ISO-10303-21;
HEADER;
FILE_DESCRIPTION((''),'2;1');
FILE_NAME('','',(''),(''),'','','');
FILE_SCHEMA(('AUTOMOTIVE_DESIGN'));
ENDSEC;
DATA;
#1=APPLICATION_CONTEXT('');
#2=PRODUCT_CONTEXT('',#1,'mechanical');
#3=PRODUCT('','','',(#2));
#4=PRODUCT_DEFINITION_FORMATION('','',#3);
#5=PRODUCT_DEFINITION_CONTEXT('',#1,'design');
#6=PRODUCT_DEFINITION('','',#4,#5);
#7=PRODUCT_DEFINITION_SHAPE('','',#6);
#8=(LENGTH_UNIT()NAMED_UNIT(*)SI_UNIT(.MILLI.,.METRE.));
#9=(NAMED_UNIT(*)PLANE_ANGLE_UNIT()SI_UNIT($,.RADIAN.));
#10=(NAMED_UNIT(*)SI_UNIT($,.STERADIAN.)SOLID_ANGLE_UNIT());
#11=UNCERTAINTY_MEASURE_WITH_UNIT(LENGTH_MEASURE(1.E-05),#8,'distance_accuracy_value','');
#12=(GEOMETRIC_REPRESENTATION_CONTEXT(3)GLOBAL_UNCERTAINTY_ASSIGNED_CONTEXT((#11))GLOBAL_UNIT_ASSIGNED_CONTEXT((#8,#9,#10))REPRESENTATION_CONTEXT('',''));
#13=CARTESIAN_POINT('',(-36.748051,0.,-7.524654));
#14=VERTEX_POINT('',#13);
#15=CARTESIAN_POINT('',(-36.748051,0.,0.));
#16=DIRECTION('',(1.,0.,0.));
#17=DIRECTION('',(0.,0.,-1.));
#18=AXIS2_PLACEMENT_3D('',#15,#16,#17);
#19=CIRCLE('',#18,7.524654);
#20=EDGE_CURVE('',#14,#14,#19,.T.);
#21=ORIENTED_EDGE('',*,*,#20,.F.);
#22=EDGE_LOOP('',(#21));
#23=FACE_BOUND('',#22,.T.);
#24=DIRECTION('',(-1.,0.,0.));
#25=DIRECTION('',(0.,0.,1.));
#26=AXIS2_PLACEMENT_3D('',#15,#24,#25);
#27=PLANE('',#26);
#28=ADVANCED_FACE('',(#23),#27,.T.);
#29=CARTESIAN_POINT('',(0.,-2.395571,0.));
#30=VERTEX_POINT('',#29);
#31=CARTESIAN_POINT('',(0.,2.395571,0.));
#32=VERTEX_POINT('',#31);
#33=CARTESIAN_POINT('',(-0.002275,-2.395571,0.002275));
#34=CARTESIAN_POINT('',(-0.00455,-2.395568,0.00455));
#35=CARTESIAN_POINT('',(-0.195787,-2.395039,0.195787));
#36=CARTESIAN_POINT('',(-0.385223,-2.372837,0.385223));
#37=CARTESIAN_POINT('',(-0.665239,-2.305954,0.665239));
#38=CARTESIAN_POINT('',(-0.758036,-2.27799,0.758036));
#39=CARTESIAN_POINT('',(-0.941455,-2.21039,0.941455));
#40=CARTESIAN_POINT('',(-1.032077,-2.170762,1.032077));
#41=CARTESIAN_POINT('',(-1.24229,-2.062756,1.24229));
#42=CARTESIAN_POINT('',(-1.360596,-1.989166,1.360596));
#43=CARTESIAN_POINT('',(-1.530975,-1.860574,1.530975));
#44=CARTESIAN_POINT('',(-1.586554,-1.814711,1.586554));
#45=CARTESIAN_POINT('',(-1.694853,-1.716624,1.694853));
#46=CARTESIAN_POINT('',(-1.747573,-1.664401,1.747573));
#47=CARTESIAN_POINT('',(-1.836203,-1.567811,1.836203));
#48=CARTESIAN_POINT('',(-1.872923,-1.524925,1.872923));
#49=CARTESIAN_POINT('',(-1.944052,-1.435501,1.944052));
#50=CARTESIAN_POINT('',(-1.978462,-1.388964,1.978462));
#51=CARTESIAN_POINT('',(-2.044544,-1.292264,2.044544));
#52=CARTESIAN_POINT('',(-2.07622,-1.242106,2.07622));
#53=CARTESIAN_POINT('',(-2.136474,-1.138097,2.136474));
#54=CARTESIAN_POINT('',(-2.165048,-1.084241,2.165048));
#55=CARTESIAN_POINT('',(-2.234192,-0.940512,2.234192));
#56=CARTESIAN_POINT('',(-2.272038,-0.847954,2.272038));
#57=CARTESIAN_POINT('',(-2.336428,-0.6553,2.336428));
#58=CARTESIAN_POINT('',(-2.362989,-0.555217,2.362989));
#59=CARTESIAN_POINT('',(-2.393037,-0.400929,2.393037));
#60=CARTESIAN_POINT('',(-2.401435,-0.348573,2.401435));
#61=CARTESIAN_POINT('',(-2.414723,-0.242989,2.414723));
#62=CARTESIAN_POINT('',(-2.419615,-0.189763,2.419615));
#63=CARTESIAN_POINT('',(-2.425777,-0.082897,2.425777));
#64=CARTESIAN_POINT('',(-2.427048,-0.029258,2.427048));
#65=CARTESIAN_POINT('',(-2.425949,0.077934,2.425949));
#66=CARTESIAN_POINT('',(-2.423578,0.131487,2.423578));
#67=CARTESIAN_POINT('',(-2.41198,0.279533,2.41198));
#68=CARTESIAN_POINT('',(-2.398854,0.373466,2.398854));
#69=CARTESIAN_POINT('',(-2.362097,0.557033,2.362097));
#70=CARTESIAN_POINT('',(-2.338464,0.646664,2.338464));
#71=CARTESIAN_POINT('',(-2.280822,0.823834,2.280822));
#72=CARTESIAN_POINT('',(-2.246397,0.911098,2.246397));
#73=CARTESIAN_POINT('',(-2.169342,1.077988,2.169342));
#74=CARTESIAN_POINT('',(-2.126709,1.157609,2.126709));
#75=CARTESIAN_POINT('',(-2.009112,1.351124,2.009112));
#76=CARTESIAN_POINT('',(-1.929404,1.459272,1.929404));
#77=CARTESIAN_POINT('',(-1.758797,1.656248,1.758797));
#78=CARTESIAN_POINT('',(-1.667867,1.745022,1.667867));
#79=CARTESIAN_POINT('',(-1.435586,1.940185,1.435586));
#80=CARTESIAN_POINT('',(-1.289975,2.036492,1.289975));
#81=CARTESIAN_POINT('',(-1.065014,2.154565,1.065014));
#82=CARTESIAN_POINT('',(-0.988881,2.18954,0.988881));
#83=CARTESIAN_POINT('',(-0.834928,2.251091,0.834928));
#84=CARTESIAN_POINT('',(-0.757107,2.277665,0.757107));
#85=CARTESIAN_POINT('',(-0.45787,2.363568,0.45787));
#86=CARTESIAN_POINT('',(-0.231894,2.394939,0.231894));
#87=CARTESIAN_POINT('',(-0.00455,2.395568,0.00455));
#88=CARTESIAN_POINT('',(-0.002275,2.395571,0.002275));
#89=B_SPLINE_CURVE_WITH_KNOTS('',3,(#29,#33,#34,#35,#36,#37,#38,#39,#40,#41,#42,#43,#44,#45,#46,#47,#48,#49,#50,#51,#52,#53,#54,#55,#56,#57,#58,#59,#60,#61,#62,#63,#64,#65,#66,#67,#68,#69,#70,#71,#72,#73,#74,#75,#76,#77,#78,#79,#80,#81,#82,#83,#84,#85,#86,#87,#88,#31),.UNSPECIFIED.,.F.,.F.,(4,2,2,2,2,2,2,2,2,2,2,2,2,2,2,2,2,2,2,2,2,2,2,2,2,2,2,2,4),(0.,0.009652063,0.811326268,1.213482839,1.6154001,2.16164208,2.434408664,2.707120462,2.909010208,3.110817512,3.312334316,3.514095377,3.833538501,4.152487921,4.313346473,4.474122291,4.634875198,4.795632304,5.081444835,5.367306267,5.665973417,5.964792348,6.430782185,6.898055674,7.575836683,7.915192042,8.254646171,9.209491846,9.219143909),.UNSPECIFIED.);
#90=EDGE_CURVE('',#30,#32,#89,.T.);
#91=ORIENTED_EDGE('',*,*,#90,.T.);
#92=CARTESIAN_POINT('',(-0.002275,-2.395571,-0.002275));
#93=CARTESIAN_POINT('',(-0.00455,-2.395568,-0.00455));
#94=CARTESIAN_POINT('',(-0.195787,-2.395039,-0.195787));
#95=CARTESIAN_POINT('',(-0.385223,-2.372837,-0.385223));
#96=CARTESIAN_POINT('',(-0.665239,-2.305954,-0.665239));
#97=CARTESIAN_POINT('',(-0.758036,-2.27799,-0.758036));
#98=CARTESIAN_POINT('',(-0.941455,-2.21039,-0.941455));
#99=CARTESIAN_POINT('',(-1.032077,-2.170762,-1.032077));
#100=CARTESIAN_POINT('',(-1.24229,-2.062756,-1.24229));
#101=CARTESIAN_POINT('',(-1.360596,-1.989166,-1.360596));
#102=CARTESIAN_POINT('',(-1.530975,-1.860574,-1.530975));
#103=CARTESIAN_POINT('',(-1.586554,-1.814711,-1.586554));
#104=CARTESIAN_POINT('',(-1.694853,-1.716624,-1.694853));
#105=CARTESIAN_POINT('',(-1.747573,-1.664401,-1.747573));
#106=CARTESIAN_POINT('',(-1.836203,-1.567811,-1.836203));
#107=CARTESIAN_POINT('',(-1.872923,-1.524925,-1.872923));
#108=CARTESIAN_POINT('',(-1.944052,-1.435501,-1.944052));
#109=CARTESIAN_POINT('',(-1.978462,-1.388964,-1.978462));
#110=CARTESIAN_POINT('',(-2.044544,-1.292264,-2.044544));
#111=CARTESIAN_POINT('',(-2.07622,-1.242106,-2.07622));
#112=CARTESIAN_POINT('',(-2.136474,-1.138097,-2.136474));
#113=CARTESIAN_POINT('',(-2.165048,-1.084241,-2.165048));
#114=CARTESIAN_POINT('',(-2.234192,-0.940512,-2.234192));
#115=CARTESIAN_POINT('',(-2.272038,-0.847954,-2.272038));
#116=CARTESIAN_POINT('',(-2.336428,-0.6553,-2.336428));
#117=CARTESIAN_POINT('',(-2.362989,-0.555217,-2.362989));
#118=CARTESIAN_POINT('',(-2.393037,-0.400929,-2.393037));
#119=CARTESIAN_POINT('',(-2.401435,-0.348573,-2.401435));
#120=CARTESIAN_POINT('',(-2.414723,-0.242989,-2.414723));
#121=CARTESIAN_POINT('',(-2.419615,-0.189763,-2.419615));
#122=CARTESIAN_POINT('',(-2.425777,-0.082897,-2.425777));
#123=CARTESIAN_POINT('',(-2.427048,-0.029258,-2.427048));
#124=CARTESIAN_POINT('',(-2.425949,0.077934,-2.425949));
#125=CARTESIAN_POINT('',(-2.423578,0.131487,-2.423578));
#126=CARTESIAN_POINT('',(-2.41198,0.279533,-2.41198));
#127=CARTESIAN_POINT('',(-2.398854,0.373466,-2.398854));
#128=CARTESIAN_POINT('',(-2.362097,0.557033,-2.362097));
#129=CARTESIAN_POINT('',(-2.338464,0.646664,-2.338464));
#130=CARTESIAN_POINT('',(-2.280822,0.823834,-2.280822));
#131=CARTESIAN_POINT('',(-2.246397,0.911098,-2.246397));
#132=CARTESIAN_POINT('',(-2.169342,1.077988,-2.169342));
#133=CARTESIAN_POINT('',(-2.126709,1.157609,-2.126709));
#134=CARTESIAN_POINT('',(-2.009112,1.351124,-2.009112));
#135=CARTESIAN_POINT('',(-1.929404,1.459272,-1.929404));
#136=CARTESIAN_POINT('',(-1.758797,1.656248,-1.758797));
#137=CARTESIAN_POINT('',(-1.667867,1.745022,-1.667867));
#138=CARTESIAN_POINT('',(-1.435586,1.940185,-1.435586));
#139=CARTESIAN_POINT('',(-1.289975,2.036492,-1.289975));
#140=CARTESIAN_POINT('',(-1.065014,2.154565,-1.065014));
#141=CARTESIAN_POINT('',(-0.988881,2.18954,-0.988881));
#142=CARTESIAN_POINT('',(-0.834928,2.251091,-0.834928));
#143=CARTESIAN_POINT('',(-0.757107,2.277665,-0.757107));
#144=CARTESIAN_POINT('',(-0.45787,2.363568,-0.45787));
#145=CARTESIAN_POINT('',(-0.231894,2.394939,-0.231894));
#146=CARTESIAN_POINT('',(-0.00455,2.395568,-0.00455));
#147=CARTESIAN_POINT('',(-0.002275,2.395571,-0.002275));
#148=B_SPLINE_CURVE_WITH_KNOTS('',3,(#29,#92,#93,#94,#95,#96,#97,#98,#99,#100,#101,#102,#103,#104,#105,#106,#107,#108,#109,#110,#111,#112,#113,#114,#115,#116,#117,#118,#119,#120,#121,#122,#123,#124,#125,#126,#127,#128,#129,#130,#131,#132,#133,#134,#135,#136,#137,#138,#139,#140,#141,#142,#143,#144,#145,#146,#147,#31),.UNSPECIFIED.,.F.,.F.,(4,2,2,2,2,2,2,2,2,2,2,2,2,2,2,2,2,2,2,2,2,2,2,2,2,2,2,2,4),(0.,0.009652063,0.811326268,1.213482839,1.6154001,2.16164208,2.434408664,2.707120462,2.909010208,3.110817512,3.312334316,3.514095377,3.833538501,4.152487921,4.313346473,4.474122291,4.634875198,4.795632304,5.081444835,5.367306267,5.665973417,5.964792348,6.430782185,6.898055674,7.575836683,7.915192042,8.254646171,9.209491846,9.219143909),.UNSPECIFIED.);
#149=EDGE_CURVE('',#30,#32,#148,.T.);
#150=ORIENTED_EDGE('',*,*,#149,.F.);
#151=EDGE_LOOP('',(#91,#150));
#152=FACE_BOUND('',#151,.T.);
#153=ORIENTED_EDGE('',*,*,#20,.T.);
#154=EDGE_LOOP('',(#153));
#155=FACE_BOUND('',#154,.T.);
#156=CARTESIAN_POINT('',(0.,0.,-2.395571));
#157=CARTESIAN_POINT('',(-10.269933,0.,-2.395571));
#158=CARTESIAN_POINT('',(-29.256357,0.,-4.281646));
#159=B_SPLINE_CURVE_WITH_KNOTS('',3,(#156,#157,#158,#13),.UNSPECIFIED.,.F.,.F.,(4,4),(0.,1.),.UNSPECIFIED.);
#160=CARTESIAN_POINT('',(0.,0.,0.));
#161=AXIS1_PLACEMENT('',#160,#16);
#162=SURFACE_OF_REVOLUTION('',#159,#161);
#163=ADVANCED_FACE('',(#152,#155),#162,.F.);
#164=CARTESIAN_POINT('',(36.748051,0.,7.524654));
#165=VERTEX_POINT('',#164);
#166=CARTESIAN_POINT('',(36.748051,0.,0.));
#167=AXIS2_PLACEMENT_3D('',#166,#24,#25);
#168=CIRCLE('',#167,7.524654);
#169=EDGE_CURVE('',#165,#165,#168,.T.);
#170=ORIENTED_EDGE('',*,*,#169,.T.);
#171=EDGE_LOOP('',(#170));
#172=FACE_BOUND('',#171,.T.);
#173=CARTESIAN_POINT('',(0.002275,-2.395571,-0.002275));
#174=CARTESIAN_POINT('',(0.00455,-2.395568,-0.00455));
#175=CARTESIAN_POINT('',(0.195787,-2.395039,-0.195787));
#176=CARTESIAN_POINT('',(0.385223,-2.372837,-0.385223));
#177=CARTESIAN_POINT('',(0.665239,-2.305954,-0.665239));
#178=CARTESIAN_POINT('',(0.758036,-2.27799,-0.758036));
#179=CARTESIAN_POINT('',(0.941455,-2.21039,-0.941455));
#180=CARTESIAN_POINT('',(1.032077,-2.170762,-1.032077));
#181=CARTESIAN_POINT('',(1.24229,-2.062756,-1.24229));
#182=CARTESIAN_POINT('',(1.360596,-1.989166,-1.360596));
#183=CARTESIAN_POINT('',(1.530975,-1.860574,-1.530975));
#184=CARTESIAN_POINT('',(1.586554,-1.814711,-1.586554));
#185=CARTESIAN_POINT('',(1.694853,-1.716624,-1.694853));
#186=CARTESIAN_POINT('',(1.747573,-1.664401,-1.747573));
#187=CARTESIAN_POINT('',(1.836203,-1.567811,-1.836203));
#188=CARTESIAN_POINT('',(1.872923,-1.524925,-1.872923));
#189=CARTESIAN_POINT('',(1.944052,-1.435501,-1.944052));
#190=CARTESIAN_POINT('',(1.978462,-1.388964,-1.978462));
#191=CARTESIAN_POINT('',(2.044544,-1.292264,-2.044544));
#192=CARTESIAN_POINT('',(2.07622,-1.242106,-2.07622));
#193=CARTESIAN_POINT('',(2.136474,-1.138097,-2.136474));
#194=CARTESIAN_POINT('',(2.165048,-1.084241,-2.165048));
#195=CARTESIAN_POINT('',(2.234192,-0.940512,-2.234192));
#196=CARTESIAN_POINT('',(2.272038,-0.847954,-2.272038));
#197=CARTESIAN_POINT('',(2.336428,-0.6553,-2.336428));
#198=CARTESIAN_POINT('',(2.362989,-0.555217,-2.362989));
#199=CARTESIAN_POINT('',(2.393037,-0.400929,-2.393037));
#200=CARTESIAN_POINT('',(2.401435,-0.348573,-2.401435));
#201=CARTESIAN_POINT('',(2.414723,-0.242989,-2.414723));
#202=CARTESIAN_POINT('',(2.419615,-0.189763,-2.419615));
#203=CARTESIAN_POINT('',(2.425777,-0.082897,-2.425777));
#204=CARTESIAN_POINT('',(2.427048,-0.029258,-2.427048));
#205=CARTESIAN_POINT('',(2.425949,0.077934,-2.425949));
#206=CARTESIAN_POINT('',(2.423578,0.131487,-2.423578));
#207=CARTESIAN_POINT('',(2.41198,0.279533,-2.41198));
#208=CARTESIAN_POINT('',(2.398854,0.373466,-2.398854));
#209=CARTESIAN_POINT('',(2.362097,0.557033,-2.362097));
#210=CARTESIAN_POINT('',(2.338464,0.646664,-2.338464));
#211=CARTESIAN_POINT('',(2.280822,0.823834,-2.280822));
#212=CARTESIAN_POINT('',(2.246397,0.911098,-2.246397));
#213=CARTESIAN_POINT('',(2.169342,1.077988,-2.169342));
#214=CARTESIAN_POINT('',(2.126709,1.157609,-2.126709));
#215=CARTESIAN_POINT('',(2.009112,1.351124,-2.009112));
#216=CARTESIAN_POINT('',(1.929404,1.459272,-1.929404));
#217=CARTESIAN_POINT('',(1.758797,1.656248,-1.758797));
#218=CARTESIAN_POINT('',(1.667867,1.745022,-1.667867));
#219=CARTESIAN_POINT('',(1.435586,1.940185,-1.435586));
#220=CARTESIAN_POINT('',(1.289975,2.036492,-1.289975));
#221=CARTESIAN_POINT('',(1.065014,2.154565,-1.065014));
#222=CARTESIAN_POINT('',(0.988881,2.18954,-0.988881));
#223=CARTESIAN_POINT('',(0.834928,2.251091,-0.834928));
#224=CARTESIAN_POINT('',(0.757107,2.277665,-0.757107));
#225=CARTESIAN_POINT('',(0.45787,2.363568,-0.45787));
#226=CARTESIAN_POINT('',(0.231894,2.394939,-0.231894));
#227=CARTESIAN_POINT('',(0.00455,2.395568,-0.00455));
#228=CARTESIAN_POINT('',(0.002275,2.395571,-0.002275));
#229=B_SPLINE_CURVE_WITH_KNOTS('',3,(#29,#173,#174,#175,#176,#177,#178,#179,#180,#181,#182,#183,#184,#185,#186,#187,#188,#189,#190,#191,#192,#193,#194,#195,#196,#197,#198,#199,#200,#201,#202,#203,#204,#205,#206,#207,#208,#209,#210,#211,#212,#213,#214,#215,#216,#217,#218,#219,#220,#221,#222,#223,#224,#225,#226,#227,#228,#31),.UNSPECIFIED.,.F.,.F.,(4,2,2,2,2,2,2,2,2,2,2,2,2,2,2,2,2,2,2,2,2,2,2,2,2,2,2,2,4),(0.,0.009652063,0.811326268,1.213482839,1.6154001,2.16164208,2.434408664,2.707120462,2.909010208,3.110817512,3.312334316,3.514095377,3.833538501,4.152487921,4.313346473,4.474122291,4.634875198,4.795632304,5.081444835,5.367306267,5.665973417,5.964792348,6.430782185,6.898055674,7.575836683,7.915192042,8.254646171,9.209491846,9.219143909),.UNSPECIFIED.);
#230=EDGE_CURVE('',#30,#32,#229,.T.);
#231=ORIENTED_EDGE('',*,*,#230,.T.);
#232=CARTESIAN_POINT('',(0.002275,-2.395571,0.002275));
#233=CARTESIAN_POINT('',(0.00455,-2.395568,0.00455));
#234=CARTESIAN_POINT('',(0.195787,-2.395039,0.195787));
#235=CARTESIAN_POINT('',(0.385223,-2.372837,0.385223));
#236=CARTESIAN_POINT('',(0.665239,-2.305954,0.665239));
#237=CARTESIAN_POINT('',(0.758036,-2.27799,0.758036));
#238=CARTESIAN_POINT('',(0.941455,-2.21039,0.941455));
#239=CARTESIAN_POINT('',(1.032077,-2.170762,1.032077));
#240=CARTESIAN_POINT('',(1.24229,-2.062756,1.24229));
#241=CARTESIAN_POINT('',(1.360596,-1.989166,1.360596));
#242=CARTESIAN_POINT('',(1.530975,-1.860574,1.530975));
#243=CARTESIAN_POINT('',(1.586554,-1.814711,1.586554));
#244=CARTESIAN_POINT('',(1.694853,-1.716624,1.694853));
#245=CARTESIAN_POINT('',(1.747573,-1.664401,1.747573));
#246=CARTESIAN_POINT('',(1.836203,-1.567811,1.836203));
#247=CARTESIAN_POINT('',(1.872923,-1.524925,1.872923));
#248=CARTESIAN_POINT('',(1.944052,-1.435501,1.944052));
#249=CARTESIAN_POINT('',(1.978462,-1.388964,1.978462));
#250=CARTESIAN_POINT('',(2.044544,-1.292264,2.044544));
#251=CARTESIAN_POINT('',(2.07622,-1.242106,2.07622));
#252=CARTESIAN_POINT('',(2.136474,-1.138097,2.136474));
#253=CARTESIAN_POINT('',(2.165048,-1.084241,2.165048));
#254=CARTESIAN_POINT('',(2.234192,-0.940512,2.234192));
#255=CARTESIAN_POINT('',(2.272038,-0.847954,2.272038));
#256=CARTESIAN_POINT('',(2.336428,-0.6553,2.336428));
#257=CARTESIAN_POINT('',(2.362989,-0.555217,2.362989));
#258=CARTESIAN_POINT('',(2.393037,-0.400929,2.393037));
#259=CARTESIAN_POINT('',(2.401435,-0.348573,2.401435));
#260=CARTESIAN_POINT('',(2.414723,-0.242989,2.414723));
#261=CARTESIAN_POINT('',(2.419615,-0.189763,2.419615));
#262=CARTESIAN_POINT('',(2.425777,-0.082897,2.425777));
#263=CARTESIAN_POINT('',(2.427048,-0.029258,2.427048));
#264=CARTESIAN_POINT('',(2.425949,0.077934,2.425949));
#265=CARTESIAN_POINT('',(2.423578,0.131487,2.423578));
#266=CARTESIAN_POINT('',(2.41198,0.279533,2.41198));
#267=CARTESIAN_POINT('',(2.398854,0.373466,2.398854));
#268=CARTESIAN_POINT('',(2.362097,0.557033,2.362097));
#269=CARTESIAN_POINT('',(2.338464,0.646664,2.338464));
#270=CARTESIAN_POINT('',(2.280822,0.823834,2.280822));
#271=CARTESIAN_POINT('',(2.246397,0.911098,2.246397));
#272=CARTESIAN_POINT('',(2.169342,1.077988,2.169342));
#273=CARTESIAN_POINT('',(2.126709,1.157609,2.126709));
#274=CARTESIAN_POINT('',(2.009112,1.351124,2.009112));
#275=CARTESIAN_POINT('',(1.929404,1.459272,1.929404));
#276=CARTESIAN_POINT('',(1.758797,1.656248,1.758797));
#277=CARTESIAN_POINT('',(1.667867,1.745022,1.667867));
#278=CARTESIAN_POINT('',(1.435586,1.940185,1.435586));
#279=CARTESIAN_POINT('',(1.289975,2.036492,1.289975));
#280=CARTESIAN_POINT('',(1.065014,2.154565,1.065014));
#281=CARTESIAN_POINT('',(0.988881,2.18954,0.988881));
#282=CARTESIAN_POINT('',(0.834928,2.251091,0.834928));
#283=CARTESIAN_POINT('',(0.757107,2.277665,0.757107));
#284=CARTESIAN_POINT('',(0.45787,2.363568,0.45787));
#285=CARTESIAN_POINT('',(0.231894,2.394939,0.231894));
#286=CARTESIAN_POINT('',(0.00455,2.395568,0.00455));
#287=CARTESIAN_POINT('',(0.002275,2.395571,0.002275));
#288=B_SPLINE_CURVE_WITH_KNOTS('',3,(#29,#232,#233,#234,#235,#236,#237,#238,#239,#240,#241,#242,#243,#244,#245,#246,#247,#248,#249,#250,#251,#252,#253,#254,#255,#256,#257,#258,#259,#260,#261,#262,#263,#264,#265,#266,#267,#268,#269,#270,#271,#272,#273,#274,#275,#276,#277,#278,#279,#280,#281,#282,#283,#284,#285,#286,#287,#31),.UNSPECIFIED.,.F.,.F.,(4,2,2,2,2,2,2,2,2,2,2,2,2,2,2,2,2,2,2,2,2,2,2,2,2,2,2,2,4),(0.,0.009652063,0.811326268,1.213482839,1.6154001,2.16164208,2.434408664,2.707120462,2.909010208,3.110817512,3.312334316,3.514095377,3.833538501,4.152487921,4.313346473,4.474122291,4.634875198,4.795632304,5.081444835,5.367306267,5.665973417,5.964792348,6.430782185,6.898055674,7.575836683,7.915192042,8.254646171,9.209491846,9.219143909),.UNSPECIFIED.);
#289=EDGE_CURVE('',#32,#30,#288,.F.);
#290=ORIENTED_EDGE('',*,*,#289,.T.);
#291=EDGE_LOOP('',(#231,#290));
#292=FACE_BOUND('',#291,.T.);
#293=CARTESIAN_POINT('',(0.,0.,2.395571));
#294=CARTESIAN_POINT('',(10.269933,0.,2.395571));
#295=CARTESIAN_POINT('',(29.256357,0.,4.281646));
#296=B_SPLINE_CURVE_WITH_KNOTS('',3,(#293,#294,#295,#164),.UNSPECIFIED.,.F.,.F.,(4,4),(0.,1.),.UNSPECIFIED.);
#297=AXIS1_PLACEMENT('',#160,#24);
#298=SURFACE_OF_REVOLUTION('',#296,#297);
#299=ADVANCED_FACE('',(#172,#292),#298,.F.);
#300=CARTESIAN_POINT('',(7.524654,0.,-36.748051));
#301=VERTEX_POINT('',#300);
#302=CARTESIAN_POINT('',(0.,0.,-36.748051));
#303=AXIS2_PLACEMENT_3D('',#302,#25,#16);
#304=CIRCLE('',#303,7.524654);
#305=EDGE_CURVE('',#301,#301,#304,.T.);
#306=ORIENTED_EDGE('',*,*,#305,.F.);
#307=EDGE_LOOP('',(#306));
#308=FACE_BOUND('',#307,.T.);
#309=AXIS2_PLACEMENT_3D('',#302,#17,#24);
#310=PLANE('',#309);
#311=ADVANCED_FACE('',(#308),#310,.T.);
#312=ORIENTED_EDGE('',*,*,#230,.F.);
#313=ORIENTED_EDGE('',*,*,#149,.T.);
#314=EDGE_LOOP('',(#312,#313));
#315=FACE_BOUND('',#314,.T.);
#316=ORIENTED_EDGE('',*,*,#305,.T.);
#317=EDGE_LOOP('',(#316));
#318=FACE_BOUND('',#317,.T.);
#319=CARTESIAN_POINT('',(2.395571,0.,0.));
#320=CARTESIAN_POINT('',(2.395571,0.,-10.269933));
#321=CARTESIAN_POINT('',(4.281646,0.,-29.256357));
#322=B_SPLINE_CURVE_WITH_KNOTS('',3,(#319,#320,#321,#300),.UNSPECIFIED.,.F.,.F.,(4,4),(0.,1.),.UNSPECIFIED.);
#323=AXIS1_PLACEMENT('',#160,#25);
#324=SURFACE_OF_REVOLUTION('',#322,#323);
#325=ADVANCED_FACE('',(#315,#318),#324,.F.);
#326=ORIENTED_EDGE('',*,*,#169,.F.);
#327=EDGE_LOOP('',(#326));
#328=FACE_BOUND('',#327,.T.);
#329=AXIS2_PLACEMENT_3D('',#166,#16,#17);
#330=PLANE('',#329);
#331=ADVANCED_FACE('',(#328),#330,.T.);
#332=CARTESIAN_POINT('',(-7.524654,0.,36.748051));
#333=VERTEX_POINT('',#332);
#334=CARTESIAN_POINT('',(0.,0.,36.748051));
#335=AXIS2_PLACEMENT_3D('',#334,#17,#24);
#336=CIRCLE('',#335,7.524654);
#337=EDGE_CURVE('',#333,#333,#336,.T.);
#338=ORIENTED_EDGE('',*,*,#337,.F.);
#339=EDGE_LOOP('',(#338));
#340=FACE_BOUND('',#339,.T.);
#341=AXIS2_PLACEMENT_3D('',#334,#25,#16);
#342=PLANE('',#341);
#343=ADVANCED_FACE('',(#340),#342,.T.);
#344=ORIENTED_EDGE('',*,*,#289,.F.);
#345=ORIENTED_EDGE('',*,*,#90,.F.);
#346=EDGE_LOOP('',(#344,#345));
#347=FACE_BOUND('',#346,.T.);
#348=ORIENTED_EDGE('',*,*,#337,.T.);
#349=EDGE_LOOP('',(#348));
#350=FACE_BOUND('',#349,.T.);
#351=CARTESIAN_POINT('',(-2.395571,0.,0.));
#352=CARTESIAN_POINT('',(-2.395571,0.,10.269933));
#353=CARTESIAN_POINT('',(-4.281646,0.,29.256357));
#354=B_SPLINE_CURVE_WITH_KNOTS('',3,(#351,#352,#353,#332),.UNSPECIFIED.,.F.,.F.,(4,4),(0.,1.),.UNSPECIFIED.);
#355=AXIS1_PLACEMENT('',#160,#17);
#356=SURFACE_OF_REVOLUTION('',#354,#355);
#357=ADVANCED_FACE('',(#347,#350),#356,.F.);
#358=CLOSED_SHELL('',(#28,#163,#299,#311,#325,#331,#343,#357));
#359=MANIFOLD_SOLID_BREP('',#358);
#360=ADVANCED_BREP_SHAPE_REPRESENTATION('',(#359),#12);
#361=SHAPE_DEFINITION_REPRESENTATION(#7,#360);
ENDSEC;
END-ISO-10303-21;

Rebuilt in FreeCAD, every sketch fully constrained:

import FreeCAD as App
import Part
import Sketcher
from FreeCAD import Vector

doc = App.newDocument("Part")
params = doc.addObject("Spreadsheet::Sheet", "Params")
for row, (alias, value) in enumerate([
    ("revolution_angle", "360 deg"),
], start=1):
    params.set(f"A{row}", alias)
    params.set(f"B{row}", "=" + value)
    params.setAlias(f"B{row}", alias)

body = doc.addObject("PartDesign::Body", "Body")

sketch1 = body.newObject("Sketcher::SketchObject", "Sketch")
sketch1.AttachmentSupport = (doc.getObject("XZ_Plane"), [""])
sketch1.MapMode = "FlatFace"
sketch1.addGeometry([
    Part.LineSegment(Vector(0, 36.748051, 0), Vector(0, 0, 0)),
    Part.LineSegment(Vector(0, 0, 0), Vector(-2.395571, 0, 0)),
    Part.BSplineCurve([Vector(-2.395571, 0, 0), Vector(-2.395571, 10.269933, 0), Vector(-4.281646, 29.256357, 0), Vector(-7.524654, 36.748051, 0)], [4, 4], [0, 1], False, 3, [1, 1, 1, 1], False),
    Part.LineSegment(Vector(-7.524654, 36.748051, 0), Vector(0, 36.748051, 0)),
], False)
sketch1.addConstraint([
    Sketcher.Constraint("Block", 2),
    Sketcher.Constraint("Coincident", 0, 2, 1, 1),
    Sketcher.Constraint("Coincident", 1, 2, 2, 1),
    Sketcher.Constraint("Coincident", 2, 2, 3, 1),
    Sketcher.Constraint("Coincident", 3, 2, 0, 1),
    Sketcher.Constraint("Vertical", 0),
    Sketcher.Constraint("Horizontal", 1),
    Sketcher.Constraint("Horizontal", 3),
    Sketcher.Constraint("PointOnObject", 3, 2, -2),
])
revolution = body.newObject("PartDesign::Revolution", "Revolution")
revolution.Profile = sketch1
revolution.ReferenceAxis = (sketch1, ["V_Axis"])
revolution.setExpression("Angle", "Params.revolution_angle")
doc.recompute()

polarpattern = body.newObject("PartDesign::PolarPattern", "PolarPattern")
polarpattern.Originals = [revolution]
polarpattern.Axis = (doc.getObject("Y_Axis"), [""])
polarpattern.Angle = 360
polarpattern.Occurrences = 4
body.Tip = polarpattern

doc.recompute()
